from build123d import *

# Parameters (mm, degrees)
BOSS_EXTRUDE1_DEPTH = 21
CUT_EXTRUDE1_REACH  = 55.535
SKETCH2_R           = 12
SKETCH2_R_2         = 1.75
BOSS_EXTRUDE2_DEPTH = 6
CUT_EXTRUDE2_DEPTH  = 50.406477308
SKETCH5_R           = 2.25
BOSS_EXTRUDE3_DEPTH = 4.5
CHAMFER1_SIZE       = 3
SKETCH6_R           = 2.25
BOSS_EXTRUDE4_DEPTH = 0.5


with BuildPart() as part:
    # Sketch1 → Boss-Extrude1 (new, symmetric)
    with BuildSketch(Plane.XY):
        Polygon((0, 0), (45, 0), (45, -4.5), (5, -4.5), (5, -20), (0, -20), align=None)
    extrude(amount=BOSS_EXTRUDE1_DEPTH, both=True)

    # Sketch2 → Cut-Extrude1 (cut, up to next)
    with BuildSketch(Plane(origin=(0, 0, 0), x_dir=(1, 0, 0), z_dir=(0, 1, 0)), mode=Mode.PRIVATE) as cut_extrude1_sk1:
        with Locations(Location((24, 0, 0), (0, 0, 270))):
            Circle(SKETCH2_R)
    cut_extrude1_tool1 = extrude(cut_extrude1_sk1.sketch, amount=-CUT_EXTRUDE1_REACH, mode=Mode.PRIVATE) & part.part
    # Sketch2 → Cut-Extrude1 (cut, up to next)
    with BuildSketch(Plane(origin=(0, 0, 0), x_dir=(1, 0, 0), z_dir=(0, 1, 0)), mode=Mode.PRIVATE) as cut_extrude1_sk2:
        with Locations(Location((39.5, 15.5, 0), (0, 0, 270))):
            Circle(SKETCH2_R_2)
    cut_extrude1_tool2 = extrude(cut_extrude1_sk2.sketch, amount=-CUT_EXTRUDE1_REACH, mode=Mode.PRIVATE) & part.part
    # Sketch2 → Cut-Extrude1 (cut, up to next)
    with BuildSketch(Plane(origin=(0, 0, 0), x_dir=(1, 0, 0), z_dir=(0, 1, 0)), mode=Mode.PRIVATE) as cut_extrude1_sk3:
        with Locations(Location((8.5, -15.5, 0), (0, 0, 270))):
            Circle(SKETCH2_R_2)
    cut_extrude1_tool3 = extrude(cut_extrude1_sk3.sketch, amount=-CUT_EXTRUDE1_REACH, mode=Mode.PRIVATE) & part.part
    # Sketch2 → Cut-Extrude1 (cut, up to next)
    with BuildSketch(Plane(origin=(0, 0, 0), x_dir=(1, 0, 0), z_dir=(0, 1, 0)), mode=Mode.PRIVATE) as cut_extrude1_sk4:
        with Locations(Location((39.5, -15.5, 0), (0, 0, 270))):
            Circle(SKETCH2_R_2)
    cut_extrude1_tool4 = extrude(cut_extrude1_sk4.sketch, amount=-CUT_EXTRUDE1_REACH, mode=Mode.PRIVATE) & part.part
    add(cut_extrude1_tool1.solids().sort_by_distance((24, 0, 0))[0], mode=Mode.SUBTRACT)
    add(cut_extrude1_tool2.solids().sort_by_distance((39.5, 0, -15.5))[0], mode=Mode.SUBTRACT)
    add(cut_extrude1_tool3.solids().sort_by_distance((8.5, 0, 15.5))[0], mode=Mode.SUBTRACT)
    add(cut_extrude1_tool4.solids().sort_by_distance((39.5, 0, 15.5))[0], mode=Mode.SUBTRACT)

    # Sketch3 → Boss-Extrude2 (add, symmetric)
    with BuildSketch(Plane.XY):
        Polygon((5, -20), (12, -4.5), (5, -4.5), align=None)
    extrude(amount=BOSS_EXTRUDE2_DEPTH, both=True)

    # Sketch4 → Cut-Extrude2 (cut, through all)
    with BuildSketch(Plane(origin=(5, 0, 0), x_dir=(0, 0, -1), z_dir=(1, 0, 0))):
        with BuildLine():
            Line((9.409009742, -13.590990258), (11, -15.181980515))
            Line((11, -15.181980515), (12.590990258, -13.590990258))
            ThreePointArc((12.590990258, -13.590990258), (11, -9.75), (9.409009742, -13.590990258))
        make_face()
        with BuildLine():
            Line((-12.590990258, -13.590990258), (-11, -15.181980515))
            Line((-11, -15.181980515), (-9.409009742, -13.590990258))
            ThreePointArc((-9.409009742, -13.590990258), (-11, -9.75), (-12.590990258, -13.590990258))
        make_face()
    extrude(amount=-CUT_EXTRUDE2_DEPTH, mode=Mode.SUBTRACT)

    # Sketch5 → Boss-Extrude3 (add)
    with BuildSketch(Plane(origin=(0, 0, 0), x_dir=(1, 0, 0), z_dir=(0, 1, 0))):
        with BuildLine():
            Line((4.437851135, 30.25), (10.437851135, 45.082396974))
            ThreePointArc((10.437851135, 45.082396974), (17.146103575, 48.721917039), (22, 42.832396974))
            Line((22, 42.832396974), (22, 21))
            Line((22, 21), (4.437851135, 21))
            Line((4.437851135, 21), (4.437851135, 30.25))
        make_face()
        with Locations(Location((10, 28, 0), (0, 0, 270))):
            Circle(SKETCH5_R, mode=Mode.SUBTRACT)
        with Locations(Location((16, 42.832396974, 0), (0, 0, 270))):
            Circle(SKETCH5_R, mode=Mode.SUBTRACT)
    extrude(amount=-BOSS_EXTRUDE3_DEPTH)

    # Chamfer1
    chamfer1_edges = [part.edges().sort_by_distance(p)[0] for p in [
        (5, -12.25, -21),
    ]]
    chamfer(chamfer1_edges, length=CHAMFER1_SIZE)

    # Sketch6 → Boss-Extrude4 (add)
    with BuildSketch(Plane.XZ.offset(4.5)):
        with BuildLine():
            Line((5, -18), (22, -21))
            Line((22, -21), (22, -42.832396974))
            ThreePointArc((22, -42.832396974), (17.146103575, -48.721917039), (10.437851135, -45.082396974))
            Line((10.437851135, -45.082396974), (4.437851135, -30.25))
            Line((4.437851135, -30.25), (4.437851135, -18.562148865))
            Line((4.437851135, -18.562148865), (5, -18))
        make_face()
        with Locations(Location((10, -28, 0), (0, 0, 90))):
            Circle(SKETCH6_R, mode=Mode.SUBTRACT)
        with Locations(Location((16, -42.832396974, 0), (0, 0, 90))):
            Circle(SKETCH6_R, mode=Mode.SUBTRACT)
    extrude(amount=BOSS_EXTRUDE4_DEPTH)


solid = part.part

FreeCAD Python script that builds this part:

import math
import FreeCAD as App
import Part
import Sketcher
Q = App.Units.Quantity


def edges_at(feature, points):
    """Names of the edges that pass closest to the given points."""
    edges = feature.Shape.Edges
    near = lambda p: min(range(len(edges)), key=lambda i: edges[i].distToShape(Part.Vertex(*p))[0])
    return sorted({f"Edge{near(p) + 1}" for p in points})


def add_polygon(sketch, points):
    """Adds a closed chain of lines whose ends are joined by coincident constraints."""
    first, n = sketch.GeometryCount, len(points)
    for a, b in zip(points, points[1:] + points[:1]):
        sketch.addGeometry(Part.LineSegment(App.Vector(*a, 0), App.Vector(*b, 0)), False)
    for i in range(n):
        sketch.addConstraint(Sketcher.Constraint("Coincident", first + i, 2, first + (i + 1) % n, 1))

doc = App.newDocument("Part")
body = doc.addObject("PartDesign::Body", "Body")

# Sketch on XY plane
sketch1 = body.newObject("Sketcher::SketchObject", "Sketch")
sketch1.AttachmentSupport = (doc.getObject("XY_Plane"), [""])
sketch1.MapMode = "FlatFace"
add_polygon(sketch1, [(45, 0), (0, 0), (0, -20), (5, -20), (5, -4.5), (45, -4.5)])  # lines 0-5
sketch1.addConstraint(Sketcher.Constraint("Horizontal", 0))
sketch1.addConstraint(Sketcher.Constraint("Vertical", 1))
sketch1.addConstraint(Sketcher.Constraint("Horizontal", 2))
sketch1.addConstraint(Sketcher.Constraint("Vertical", 3))
sketch1.addConstraint(Sketcher.Constraint("Horizontal", 4))
sketch1.addConstraint(Sketcher.Constraint("Vertical", 5))
sketch1.addConstraint(Sketcher.Constraint("Coincident", 0, 2, -1, 1))
sketch1.addConstraint(Sketcher.Constraint("DistanceX", 0, 2, 0, 1, 45.0))
sketch1.addConstraint(Sketcher.Constraint("DistanceX", 2, 1, 2, 2, 5.0))
sketch1.addConstraint(Sketcher.Constraint("DistanceY", 1, 2, 1, 1, 20.0))
sketch1.addConstraint(Sketcher.Constraint("DistanceY", 3, 1, 3, 2, 15.5))
pad1 = body.newObject("PartDesign::Pad", "Pad")
pad1.Profile = sketch1
pad1.Length = 42
pad1.Midplane = True

# Sketch on XZ plane
sketch2 = body.newObject("Sketcher::SketchObject", "Sketch001")
sketch2.AttachmentSupport = (doc.getObject("XZ_Plane"), [""])
sketch2.MapMode = "FlatFace"
sketch2.addGeometry(Part.Circle(App.Vector(24, 0, 0), App.Vector(0, 0, 1), 12), False)
sketch2.addConstraint(Sketcher.Constraint("PointOnObject", 0, 3, -1))
sketch2.addConstraint(Sketcher.Constraint("Diameter", 0, 24.0))
sketch2.addConstraint(Sketcher.Constraint("DistanceX", -1, 1, 0, 3, 24.0))
pocket1 = body.newObject("PartDesign::Pocket", "Pocket")
pocket1.Profile = sketch2
pocket1.Type = "UpToFirst"
pocket1.Reversed = True

# Sketch on XZ plane
sketch3 = body.newObject("Sketcher::SketchObject", "Sketch002")
sketch3.AttachmentSupport = (doc.getObject("XZ_Plane"), [""])
sketch3.MapMode = "FlatFace"
sketch3.addGeometry(Part.Circle(App.Vector(39.5, -15.5, 0), App.Vector(0, 0, 1), 1.8), False)
sketch3.addConstraint(Sketcher.Constraint("Diameter", 0, 3.5))
sketch3.addConstraint(Sketcher.Constraint("DistanceX", -1, 1, 0, 3, 39.5))
sketch3.addConstraint(Sketcher.Constraint("DistanceY", 0, 3, -1, 1, 15.5))
pocket2 = body.newObject("PartDesign::Pocket", "Pocket001")
pocket2.Profile = sketch3
pocket2.Type = "UpToFirst"
pocket2.Reversed = True

# Sketch on XZ plane
sketch4 = body.newObject("Sketcher::SketchObject", "Sketch003")
sketch4.AttachmentSupport = (doc.getObject("XZ_Plane"), [""])
sketch4.MapMode = "FlatFace"
sketch4.addGeometry(Part.Circle(App.Vector(8.5, 15.5, 0), App.Vector(0, 0, 1), 1.8), False)
sketch4.addConstraint(Sketcher.Constraint("Diameter", 0, 3.5))
sketch4.addConstraint(Sketcher.Constraint("DistanceX", -1, 1, 0, 3, 8.5))
sketch4.addConstraint(Sketcher.Constraint("DistanceY", -1, 1, 0, 3, 15.5))
pocket3 = body.newObject("PartDesign::Pocket", "Pocket002")
pocket3.Profile = sketch4
pocket3.Type = "UpToFirst"
pocket3.Reversed = True

# Sketch on XZ plane
sketch5 = body.newObject("Sketcher::SketchObject", "Sketch004")
sketch5.AttachmentSupport = (doc.getObject("XZ_Plane"), [""])
sketch5.MapMode = "FlatFace"
sketch5.addGeometry(Part.Circle(App.Vector(39.5, 15.5, 0), App.Vector(0, 0, 1), 1.8), False)
sketch5.addConstraint(Sketcher.Constraint("Diameter", 0, 3.5))
sketch5.addConstraint(Sketcher.Constraint("DistanceX", -1, 1, 0, 3, 39.5))
sketch5.addConstraint(Sketcher.Constraint("DistanceY", -1, 1, 0, 3, 15.5))
pocket4 = body.newObject("PartDesign::Pocket", "Pocket003")
pocket4.Profile = sketch5
pocket4.Type = "UpToFirst"
pocket4.Reversed = True

# Sketch on XY plane
sketch6 = body.newObject("Sketcher::SketchObject", "Sketch005")
sketch6.AttachmentSupport = (doc.getObject("XY_Plane"), [""])
sketch6.MapMode = "FlatFace"
add_polygon(sketch6, [(5, -20), (12, -4), (5, -4)])  # lines 0-2
sketch6.addConstraint(Sketcher.Constraint("Horizontal", 1))
sketch6.addConstraint(Sketcher.Constraint("Vertical", 2))
sketch6.addConstraint(Sketcher.Constraint("DistanceX", 1, 2, 1, 1, 7.0))
sketch6.addConstraint(Sketcher.Constraint("DistanceY", 2, 2, 2, 1, 15.5))
sketch6.addConstraint(Sketcher.Constraint("DistanceX", -1, 1, 0, 2, 12.0))
sketch6.addConstraint(Sketcher.Constraint("DistanceY", 2, 2, -1, 1, 20.0))
pad2 = body.newObject("PartDesign::Pad", "Pad001")
pad2.Profile = sketch6
pad2.Length = 12
pad2.Midplane = True

# Sketch on YZ plane
sketch7 = body.newObject("Sketcher::SketchObject", "Sketch006")
sketch7.AttachmentSupport = (doc.getObject("YZ_Plane"), [""])
sketch7.MapMode = "FlatFace"
sketch7.AttachmentOffset = App.Placement(App.Vector(0, 0, 5), App.Rotation())
sketch7.addGeometry(Part.LineSegment(App.Vector(-13.6, -9.4, 0), App.Vector(-15.2, -11, 0)), False)
sketch7.addGeometry(Part.LineSegment(App.Vector(-15.2, -11, 0), App.Vector(-13.6, -12.6, 0)), False)
sketch7.addGeometry(Part.ArcOfCircle(Part.Circle(App.Vector(-12, -11, 0), App.Vector(0, 0, 1), 2.2), math.radians(-135), math.radians(135)), False)
sketch7.addGeometry(Part.LineSegment(App.Vector(-13.6, 12.6, 0), App.Vector(-15.2, 11, 0)), False)
sketch7.addGeometry(Part.LineSegment(App.Vector(-15.2, 11, 0), App.Vector(-13.6, 9.4, 0)), False)
sketch7.addGeometry(Part.ArcOfCircle(Part.Circle(App.Vector(-12, 11, 0), App.Vector(0, 0, 1), 2.2), math.radians(-135), math.radians(135)), False)
sketch7.addConstraint(Sketcher.Constraint("Coincident", 0, 2, 1, 1))
sketch7.addConstraint(Sketcher.Constraint("Tangent", 1, 2, 2, 1))
sketch7.addConstraint(Sketcher.Constraint("Tangent", 2, 2, 0, 1))
sketch7.addConstraint(Sketcher.Constraint("Coincident", 3, 2, 4, 1))
sketch7.addConstraint(Sketcher.Constraint("Tangent", 4, 2, 5, 1))
sketch7.addConstraint(Sketcher.Constraint("Tangent", 5, 2, 3, 1))
sketch7.addConstraint(Sketcher.Constraint("Equal", 2, 5))
sketch7.addConstraint(Sketcher.Constraint("Symmetric", 2, 3, 5, 3, -1))
sketch7.addConstraint(Sketcher.Constraint("Symmetric", 0, 2, 3, 2, -1))
sketch7.addConstraint(Sketcher.Constraint("Perpendicular", 0, 1))
sketch7.addConstraint(Sketcher.Constraint("Perpendicular", 1, 3))
sketch7.addConstraint(Sketcher.Constraint("Radius", 2, 2.25))
sketch7.addConstraint(Sketcher.Constraint("DistanceX", 2, 3, -1, 1, 12.0))
sketch7.addConstraint(Sketcher.Constraint("DistanceY", 2, 3, -1, 1, 11.0))
pocket5 = body.newObject("PartDesign::Pocket", "Pocket004")
pocket5.Profile = sketch7
pocket5.Type = "ThroughAll"

# Sketch on XZ plane
sketch8 = body.newObject("Sketcher::SketchObject", "Sketch007")
sketch8.AttachmentSupport = (doc.getObject("XZ_Plane"), [""])
sketch8.MapMode = "FlatFace"
sketch8.addGeometry(Part.LineSegment(App.Vector(10.4, -45.1, 0), App.Vector(4.4, -30.2, 0)), False)
sketch8.addGeometry(Part.LineSegment(App.Vector(4.4, -30.2, 0), App.Vector(4.4, -21, 0)), False)
sketch8.addGeometry(Part.LineSegment(App.Vector(4.4, -21, 0), App.Vector(22, -21, 0)), False)
sketch8.addGeometry(Part.LineSegment(App.Vector(22, -21, 0), App.Vector(22, -42.8, 0)), False)
sketch8.addGeometry(Part.ArcOfCircle(Part.Circle(App.Vector(16, -42.8, 0), App.Vector(0, 0, 1), 6), math.radians(-158), math.radians(0)), False)
sketch8.addGeometry(Part.Circle(App.Vector(10, -28, 0), App.Vector(0, 0, 1), 2.2), False)
sketch8.addGeometry(Part.Circle(App.Vector(16, -42.8, 0), App.Vector(0, 0, 1), 2.2), False)
sketch8.addConstraint(Sketcher.Constraint("Coincident", 0, 2, 1, 1))
sketch8.addConstraint(Sketcher.Constraint("Coincident", 1, 2, 2, 1))
sketch8.addConstraint(Sketcher.Constraint("Coincident", 2, 2, 3, 1))
sketch8.addConstraint(Sketcher.Constraint("Tangent", 3, 2, 4, 2))
sketch8.addConstraint(Sketcher.Constraint("Tangent", 4, 1, 0, 1))
sketch8.addConstraint(Sketcher.Constraint("Vertical", 1))
sketch8.addConstraint(Sketcher.Constraint("Horizontal", 2))
sketch8.addConstraint(Sketcher.Constraint("Vertical", 3))
sketch8.addConstraint(Sketcher.Constraint("Coincident", 6, 3, 4, 3))
sketch8.addConstraint(Sketcher.Constraint("Equal", 5, 6))
sketch8.addConstraint(Sketcher.Constraint("Radius", 4, 6.0))
sketch8.addConstraint(Sketcher.Constraint("Diameter", 5, 4.5))
sketch8.addConstraint(Sketcher.Constraint("Distance", 0, 16.0))
sketch8.addConstraint(Sketcher.Constraint("DistanceX", -1, 1, 4, 3, 16.0))
sketch8.addConstraint(Sketcher.Constraint("DistanceX", -1, 1, 5, 3, 10.0))
sketch8.addConstraint(Sketcher.Constraint("DistanceY", 5, 3, -1, 1, 28.0))
sketch8.addConstraint(Sketcher.Constraint("DistanceY", 1, 2, -1, 1, 21.0))
sketch8.addConstraint(Sketcher.Constraint("DistanceX", 0, 2, 4, 1, 6.0))
sketch8.addConstraint(Sketcher.Constraint("DistanceY", 1, 1, 1, 2, 9.25))
pad3 = body.newObject("PartDesign::Pad", "Pad002")
pad3.Profile = sketch8
pad3.Length = 4.5
doc.recompute()

chamfer = body.newObject("PartDesign::Chamfer", "Chamfer")
chamfer.Base = (pad3, edges_at(pad3, [(5, -12.25, -21)]))
chamfer.Size = 3

# Sketch on XZ plane
sketch9 = body.newObject("Sketcher::SketchObject", "Sketch008")
sketch9.AttachmentSupport = (doc.getObject("XZ_Plane"), [""])
sketch9.MapMode = "FlatFace"
sketch9.AttachmentOffset = App.Placement(App.Vector(0, 0, 4.5), App.Rotation())
sketch9.addGeometry(Part.LineSegment(App.Vector(22, -21, 0), App.Vector(5, -18, 0)), False)
sketch9.addGeometry(Part.LineSegment(App.Vector(5, -18, 0), App.Vector(4.4, -18.6, 0)), False)
sketch9.addGeometry(Part.LineSegment(App.Vector(4.4, -18.6, 0), App.Vector(4.4, -30.2, 0)), False)
sketch9.addGeometry(Part.LineSegment(App.Vector(4.4, -30.2, 0), App.Vector(10.4, -45.1, 0)), False)
sketch9.addGeometry(Part.ArcOfCircle(Part.Circle(App.Vector(16, -42.8, 0), App.Vector(0, 0, 1), 6), math.radians(-158), math.radians(0)), False)
sketch9.addGeometry(Part.LineSegment(App.Vector(22, -42.8, 0), App.Vector(22, -21, 0)), False)
sketch9.addGeometry(Part.Circle(App.Vector(16, -42.8, 0), App.Vector(0, 0, 1), 2.2), False)
sketch9.addGeometry(Part.Circle(App.Vector(10, -28, 0), App.Vector(0, 0, 1), 2.2), False)
sketch9.addConstraint(Sketcher.Constraint("Coincident", 0, 2, 1, 1))
sketch9.addConstraint(Sketcher.Constraint("Coincident", 1, 2, 2, 1))
sketch9.addConstraint(Sketcher.Constraint("Coincident", 2, 2, 3, 1))
sketch9.addConstraint(Sketcher.Constraint("Tangent", 3, 2, 4, 1))
sketch9.addConstraint(Sketcher.Constraint("Tangent", 4, 2, 5, 1))
sketch9.addConstraint(Sketcher.Constraint("Coincident", 5, 2, 0, 1))
sketch9.addConstraint(Sketcher.Constraint("Vertical", 2))
sketch9.addConstraint(Sketcher.Constraint("Vertical", 5))
sketch9.addConstraint(Sketcher.Constraint("Coincident", 6, 3, 4, 3))
sketch9.addConstraint(Sketcher.Constraint("Equal", 6, 7))
sketch9.addConstraint(Sketcher.Constraint("Radius", 4, 6.0))
sketch9.addConstraint(Sketcher.Constraint("Diameter", 6, 4.5))
sketch9.addConstraint(Sketcher.Constraint("Angle", 1, Q("-135 deg")))
sketch9.addConstraint(Sketcher.Constraint("Distance", 3, 16.0))
sketch9.addConstraint(Sketcher.Constraint("DistanceX", -1, 1, 4, 3, 16.0))
sketch9.addConstraint(Sketcher.Constraint("DistanceX", -1, 1, 7, 3, 10.0))
sketch9.addConstraint(Sketcher.Constraint("DistanceY", 7, 3, -1, 1, 28.0))
sketch9.addConstraint(Sketcher.Constraint("DistanceX", -1, 1, 0, 2, 5.0))
sketch9.addConstraint(Sketcher.Constraint("DistanceY", 0, 2, -1, 1, 18.0))
sketch9.addConstraint(Sketcher.Constraint("DistanceY", 5, 2, -1, 1, 21.0))
sketch9.addConstraint(Sketcher.Constraint("DistanceX", 2, 2, 3, 2, 6.0))
sketch9.addConstraint(Sketcher.Constraint("DistanceY", 2, 2, -1, 1, 30.25))
pad4 = body.newObject("PartDesign::Pad", "Pad003")
pad4.Profile = sketch9
pad4.Length = 0.5

doc.recompute()
